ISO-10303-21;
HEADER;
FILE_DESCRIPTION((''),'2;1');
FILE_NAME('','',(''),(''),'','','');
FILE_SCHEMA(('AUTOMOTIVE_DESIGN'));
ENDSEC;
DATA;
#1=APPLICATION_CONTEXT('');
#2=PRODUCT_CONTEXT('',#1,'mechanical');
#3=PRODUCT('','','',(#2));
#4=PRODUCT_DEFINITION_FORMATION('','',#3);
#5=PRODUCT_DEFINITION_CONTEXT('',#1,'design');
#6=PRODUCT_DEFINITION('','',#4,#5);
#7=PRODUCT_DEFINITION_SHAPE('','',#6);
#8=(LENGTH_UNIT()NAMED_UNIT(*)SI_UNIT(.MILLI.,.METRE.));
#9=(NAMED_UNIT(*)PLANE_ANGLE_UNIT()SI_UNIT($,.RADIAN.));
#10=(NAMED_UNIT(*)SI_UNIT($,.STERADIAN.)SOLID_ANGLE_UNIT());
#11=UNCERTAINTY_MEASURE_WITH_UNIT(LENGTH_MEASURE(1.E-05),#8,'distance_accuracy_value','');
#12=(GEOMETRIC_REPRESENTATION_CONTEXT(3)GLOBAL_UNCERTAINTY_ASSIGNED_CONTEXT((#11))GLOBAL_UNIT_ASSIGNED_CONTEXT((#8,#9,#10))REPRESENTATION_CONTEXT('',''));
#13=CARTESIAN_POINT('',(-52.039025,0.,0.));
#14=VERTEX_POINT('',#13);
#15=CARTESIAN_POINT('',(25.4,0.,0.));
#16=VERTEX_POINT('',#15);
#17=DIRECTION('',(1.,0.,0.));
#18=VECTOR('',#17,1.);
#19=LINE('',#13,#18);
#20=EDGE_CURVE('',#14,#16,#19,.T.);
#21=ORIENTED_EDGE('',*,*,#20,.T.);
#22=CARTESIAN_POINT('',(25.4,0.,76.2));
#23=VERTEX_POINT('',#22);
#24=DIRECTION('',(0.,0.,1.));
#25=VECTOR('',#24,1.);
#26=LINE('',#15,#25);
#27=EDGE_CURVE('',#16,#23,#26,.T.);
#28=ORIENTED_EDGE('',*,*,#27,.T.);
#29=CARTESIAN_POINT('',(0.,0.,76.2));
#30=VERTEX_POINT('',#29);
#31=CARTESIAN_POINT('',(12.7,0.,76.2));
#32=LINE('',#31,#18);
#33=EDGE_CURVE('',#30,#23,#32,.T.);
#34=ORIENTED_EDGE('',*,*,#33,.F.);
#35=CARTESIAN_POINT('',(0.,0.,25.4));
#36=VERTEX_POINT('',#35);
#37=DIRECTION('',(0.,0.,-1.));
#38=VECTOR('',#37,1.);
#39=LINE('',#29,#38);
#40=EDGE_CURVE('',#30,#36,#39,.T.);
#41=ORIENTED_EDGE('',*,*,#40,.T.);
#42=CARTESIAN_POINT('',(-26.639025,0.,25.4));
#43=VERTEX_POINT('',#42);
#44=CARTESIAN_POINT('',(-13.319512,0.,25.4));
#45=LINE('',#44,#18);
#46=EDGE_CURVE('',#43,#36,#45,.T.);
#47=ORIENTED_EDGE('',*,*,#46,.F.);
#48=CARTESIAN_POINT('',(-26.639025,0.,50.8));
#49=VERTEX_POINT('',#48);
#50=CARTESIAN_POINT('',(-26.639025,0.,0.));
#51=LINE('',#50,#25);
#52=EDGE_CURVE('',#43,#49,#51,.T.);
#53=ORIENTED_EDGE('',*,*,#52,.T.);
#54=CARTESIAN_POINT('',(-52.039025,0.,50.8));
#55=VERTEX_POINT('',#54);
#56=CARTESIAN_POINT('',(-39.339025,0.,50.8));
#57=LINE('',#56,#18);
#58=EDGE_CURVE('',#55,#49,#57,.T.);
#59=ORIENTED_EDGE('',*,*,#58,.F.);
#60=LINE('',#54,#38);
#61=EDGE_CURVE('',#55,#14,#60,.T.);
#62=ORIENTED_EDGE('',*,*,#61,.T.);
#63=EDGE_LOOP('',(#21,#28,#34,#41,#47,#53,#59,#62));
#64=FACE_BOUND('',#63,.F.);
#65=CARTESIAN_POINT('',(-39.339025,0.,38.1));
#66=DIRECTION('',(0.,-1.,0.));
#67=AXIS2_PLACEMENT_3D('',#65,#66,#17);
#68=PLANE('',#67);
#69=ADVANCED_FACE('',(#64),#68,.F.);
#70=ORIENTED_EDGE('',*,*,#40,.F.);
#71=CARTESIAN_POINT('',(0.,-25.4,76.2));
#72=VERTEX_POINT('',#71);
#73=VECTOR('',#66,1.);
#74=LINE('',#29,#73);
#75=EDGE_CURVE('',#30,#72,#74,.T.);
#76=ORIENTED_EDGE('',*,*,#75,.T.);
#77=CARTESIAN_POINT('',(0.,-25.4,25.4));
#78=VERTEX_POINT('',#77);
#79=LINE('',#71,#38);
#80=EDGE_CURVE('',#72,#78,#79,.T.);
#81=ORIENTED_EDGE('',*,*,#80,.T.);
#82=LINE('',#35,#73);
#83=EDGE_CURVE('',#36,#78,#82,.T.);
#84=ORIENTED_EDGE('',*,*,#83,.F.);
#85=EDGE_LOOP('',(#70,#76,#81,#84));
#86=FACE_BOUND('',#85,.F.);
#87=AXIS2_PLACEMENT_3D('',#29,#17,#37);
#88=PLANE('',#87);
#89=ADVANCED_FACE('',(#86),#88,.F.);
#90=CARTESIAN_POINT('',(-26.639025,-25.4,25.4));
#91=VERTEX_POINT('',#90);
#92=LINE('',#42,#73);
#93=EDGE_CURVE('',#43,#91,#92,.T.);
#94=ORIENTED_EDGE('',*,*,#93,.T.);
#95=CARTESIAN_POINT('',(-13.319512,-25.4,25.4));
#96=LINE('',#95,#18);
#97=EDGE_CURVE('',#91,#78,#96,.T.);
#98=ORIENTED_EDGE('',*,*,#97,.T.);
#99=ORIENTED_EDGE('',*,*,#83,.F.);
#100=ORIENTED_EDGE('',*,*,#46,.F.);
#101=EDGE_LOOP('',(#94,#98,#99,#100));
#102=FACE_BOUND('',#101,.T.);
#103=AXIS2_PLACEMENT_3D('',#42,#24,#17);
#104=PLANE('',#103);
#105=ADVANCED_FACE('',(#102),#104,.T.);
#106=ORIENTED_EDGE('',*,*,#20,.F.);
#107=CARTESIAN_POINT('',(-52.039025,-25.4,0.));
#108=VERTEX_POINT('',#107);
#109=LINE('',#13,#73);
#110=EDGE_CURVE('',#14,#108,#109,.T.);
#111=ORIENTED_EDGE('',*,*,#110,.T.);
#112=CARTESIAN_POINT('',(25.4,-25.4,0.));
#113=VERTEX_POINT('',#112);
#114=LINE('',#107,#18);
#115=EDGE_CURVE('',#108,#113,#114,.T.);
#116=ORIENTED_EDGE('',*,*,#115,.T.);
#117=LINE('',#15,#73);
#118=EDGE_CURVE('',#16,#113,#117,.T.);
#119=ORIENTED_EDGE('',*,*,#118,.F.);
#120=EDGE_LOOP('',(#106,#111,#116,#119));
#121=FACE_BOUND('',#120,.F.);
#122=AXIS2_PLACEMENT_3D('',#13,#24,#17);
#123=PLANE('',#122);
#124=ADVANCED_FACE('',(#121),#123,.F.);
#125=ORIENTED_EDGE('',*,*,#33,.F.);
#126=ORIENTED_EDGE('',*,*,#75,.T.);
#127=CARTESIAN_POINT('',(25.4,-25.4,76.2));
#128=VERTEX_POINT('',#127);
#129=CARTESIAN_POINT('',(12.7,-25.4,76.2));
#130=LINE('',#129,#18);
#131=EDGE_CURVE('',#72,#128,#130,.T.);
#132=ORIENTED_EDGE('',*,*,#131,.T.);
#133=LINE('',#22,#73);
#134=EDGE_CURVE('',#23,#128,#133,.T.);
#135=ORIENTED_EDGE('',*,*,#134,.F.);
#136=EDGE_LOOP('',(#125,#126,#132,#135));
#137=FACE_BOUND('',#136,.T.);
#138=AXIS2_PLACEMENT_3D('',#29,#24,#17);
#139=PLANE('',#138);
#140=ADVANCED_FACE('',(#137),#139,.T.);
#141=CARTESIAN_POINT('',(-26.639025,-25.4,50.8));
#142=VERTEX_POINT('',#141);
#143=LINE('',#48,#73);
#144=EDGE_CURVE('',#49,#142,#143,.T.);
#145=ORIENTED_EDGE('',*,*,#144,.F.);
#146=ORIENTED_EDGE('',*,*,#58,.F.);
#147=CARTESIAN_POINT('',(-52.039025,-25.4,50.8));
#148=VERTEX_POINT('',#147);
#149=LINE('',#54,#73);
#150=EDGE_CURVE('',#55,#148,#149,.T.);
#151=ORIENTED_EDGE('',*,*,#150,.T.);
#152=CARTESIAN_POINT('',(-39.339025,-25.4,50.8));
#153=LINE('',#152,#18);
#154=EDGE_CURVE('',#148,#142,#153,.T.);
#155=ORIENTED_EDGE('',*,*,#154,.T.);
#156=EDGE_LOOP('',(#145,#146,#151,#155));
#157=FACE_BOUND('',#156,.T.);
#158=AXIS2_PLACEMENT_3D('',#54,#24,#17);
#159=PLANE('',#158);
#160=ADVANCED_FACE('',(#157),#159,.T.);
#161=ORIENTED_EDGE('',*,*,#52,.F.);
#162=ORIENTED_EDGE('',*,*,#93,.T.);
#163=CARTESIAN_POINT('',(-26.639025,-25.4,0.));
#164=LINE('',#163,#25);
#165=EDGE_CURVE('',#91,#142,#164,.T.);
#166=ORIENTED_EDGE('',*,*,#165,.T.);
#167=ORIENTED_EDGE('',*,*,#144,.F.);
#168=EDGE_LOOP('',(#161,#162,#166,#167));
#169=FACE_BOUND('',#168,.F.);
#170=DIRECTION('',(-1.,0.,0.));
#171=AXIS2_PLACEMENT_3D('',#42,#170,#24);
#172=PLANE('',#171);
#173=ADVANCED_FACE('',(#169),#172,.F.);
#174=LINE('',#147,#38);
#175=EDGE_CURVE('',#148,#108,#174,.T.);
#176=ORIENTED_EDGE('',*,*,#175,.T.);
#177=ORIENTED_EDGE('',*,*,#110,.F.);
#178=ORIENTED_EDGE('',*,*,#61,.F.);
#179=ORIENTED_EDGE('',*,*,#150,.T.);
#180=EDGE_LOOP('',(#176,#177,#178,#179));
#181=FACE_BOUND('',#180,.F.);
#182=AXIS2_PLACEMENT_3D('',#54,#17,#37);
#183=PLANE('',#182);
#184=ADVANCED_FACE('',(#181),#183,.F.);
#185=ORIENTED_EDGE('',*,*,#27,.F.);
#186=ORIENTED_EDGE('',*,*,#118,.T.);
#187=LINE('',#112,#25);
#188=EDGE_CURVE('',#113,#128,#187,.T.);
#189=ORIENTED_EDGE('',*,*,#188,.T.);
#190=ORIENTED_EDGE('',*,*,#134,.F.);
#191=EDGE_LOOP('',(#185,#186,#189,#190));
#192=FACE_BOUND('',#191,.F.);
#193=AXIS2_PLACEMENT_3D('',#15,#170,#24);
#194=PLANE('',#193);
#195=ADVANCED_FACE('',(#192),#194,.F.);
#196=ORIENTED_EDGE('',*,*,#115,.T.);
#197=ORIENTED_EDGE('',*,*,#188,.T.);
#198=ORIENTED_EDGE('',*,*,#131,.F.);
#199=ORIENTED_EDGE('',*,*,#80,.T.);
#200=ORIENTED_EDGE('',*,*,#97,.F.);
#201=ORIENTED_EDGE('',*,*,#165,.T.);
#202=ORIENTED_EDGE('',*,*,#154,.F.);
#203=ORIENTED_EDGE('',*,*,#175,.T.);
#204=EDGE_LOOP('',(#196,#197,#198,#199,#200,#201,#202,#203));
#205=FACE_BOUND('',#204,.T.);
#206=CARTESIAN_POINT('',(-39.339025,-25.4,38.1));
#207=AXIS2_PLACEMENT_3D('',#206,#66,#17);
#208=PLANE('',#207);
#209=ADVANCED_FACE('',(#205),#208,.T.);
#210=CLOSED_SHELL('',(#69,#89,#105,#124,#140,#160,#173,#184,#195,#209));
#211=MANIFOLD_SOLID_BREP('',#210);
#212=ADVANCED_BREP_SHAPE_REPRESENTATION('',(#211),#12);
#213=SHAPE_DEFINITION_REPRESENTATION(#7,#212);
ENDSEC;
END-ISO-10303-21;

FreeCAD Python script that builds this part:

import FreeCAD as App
import Part
import Sketcher
Q = App.Units.Quantity

doc = App.newDocument("Part")
body = doc.addObject("PartDesign::Body", "Body")

# Sketch on XZ plane
sketch1 = body.newObject("Sketcher::SketchObject", "Sketch")
sketch1.AttachmentSupport = (doc.getObject("XZ_Plane"), [""])
sketch1.MapMode = "FlatFace"
sketch1.addGeometry(Part.LineSegment(App.Vector(-52, 51, 0), App.Vector(-52, 0, 0)), False)
sketch1.addGeometry(Part.LineSegment(App.Vector(-52, 0, 0), App.Vector(25, 0, 0)), False)
sketch1.addGeometry(Part.LineSegment(App.Vector(25, 0, 0), App.Vector(25, 76, 0)), False)
sketch1.addGeometry(Part.LineSegment(App.Vector(25, 76, 0), App.Vector(0, 76, 0)), False)
sketch1.addGeometry(Part.LineSegment(App.Vector(0, 76, 0), App.Vector(0, 25, 0)), False)
sketch1.addGeometry(Part.LineSegment(App.Vector(0, 25, 0), App.Vector(-27, 25, 0)), False)
sketch1.addGeometry(Part.LineSegment(App.Vector(-27, 25, 0), App.Vector(-27, 51, 0)), False)
sketch1.addGeometry(Part.LineSegment(App.Vector(-27, 51, 0), App.Vector(-52, 51, 0)), False)
sketch1.addConstraint(Sketcher.Constraint("Coincident", 0, 2, 1, 1))
sketch1.addConstraint(Sketcher.Constraint("Coincident", 1, 2, 2, 1))
sketch1.addConstraint(Sketcher.Constraint("Coincident", 2, 2, 3, 1))
sketch1.addConstraint(Sketcher.Constraint("Coincident", 3, 2, 4, 1))
sketch1.addConstraint(Sketcher.Constraint("Coincident", 4, 2, 5, 1))
sketch1.addConstraint(Sketcher.Constraint("Coincident", 5, 2, 6, 1))
sketch1.addConstraint(Sketcher.Constraint("Coincident", 6, 2, 7, 1))
sketch1.addConstraint(Sketcher.Constraint("Coincident", 7, 2, 0, 1))
sketch1.addConstraint(Sketcher.Constraint("Vertical", 0))
sketch1.addConstraint(Sketcher.Constraint("Horizontal", 1))
sketch1.addConstraint(Sketcher.Constraint("Vertical", 2))
sketch1.addConstraint(Sketcher.Constraint("Horizontal", 3))
sketch1.addConstraint(Sketcher.Constraint("Vertical", 4))
sketch1.addConstraint(Sketcher.Constraint("Horizontal", 5))
sketch1.addConstraint(Sketcher.Constraint("Vertical", 6))
sketch1.addConstraint(Sketcher.Constraint("Horizontal", 7))
sketch1.addConstraint(Sketcher.Constraint("PointOnObject", 0, 2, -1))
sketch1.addConstraint(Sketcher.Constraint("PointOnObject", 3, 2, -2))
sketch1.addConstraint(Sketcher.Constraint("Equal", 3, 7))
sketch1.addConstraint(Sketcher.Constraint("Equal", 0, 4))
sketch1.addConstraint(Sketcher.Constraint("Equal", 7, 6))
sketch1.addConstraint(Sketcher.Constraint("DistanceX", 3, 2, 3, 1, Q("1 in")))
sketch1.addConstraint(Sketcher.Constraint("DistanceY", 0, 2, 0, 1, Q("2 in")))
sketch1.addConstraint(Sketcher.Constraint("DistanceX", 1, 1, 1, 2, Q("77.439025 mm")))
pad1 = body.newObject("PartDesign::Pad", "Pad")
pad1.Profile = sketch1
pad1.Length = Q("1 in")

doc.recompute()
